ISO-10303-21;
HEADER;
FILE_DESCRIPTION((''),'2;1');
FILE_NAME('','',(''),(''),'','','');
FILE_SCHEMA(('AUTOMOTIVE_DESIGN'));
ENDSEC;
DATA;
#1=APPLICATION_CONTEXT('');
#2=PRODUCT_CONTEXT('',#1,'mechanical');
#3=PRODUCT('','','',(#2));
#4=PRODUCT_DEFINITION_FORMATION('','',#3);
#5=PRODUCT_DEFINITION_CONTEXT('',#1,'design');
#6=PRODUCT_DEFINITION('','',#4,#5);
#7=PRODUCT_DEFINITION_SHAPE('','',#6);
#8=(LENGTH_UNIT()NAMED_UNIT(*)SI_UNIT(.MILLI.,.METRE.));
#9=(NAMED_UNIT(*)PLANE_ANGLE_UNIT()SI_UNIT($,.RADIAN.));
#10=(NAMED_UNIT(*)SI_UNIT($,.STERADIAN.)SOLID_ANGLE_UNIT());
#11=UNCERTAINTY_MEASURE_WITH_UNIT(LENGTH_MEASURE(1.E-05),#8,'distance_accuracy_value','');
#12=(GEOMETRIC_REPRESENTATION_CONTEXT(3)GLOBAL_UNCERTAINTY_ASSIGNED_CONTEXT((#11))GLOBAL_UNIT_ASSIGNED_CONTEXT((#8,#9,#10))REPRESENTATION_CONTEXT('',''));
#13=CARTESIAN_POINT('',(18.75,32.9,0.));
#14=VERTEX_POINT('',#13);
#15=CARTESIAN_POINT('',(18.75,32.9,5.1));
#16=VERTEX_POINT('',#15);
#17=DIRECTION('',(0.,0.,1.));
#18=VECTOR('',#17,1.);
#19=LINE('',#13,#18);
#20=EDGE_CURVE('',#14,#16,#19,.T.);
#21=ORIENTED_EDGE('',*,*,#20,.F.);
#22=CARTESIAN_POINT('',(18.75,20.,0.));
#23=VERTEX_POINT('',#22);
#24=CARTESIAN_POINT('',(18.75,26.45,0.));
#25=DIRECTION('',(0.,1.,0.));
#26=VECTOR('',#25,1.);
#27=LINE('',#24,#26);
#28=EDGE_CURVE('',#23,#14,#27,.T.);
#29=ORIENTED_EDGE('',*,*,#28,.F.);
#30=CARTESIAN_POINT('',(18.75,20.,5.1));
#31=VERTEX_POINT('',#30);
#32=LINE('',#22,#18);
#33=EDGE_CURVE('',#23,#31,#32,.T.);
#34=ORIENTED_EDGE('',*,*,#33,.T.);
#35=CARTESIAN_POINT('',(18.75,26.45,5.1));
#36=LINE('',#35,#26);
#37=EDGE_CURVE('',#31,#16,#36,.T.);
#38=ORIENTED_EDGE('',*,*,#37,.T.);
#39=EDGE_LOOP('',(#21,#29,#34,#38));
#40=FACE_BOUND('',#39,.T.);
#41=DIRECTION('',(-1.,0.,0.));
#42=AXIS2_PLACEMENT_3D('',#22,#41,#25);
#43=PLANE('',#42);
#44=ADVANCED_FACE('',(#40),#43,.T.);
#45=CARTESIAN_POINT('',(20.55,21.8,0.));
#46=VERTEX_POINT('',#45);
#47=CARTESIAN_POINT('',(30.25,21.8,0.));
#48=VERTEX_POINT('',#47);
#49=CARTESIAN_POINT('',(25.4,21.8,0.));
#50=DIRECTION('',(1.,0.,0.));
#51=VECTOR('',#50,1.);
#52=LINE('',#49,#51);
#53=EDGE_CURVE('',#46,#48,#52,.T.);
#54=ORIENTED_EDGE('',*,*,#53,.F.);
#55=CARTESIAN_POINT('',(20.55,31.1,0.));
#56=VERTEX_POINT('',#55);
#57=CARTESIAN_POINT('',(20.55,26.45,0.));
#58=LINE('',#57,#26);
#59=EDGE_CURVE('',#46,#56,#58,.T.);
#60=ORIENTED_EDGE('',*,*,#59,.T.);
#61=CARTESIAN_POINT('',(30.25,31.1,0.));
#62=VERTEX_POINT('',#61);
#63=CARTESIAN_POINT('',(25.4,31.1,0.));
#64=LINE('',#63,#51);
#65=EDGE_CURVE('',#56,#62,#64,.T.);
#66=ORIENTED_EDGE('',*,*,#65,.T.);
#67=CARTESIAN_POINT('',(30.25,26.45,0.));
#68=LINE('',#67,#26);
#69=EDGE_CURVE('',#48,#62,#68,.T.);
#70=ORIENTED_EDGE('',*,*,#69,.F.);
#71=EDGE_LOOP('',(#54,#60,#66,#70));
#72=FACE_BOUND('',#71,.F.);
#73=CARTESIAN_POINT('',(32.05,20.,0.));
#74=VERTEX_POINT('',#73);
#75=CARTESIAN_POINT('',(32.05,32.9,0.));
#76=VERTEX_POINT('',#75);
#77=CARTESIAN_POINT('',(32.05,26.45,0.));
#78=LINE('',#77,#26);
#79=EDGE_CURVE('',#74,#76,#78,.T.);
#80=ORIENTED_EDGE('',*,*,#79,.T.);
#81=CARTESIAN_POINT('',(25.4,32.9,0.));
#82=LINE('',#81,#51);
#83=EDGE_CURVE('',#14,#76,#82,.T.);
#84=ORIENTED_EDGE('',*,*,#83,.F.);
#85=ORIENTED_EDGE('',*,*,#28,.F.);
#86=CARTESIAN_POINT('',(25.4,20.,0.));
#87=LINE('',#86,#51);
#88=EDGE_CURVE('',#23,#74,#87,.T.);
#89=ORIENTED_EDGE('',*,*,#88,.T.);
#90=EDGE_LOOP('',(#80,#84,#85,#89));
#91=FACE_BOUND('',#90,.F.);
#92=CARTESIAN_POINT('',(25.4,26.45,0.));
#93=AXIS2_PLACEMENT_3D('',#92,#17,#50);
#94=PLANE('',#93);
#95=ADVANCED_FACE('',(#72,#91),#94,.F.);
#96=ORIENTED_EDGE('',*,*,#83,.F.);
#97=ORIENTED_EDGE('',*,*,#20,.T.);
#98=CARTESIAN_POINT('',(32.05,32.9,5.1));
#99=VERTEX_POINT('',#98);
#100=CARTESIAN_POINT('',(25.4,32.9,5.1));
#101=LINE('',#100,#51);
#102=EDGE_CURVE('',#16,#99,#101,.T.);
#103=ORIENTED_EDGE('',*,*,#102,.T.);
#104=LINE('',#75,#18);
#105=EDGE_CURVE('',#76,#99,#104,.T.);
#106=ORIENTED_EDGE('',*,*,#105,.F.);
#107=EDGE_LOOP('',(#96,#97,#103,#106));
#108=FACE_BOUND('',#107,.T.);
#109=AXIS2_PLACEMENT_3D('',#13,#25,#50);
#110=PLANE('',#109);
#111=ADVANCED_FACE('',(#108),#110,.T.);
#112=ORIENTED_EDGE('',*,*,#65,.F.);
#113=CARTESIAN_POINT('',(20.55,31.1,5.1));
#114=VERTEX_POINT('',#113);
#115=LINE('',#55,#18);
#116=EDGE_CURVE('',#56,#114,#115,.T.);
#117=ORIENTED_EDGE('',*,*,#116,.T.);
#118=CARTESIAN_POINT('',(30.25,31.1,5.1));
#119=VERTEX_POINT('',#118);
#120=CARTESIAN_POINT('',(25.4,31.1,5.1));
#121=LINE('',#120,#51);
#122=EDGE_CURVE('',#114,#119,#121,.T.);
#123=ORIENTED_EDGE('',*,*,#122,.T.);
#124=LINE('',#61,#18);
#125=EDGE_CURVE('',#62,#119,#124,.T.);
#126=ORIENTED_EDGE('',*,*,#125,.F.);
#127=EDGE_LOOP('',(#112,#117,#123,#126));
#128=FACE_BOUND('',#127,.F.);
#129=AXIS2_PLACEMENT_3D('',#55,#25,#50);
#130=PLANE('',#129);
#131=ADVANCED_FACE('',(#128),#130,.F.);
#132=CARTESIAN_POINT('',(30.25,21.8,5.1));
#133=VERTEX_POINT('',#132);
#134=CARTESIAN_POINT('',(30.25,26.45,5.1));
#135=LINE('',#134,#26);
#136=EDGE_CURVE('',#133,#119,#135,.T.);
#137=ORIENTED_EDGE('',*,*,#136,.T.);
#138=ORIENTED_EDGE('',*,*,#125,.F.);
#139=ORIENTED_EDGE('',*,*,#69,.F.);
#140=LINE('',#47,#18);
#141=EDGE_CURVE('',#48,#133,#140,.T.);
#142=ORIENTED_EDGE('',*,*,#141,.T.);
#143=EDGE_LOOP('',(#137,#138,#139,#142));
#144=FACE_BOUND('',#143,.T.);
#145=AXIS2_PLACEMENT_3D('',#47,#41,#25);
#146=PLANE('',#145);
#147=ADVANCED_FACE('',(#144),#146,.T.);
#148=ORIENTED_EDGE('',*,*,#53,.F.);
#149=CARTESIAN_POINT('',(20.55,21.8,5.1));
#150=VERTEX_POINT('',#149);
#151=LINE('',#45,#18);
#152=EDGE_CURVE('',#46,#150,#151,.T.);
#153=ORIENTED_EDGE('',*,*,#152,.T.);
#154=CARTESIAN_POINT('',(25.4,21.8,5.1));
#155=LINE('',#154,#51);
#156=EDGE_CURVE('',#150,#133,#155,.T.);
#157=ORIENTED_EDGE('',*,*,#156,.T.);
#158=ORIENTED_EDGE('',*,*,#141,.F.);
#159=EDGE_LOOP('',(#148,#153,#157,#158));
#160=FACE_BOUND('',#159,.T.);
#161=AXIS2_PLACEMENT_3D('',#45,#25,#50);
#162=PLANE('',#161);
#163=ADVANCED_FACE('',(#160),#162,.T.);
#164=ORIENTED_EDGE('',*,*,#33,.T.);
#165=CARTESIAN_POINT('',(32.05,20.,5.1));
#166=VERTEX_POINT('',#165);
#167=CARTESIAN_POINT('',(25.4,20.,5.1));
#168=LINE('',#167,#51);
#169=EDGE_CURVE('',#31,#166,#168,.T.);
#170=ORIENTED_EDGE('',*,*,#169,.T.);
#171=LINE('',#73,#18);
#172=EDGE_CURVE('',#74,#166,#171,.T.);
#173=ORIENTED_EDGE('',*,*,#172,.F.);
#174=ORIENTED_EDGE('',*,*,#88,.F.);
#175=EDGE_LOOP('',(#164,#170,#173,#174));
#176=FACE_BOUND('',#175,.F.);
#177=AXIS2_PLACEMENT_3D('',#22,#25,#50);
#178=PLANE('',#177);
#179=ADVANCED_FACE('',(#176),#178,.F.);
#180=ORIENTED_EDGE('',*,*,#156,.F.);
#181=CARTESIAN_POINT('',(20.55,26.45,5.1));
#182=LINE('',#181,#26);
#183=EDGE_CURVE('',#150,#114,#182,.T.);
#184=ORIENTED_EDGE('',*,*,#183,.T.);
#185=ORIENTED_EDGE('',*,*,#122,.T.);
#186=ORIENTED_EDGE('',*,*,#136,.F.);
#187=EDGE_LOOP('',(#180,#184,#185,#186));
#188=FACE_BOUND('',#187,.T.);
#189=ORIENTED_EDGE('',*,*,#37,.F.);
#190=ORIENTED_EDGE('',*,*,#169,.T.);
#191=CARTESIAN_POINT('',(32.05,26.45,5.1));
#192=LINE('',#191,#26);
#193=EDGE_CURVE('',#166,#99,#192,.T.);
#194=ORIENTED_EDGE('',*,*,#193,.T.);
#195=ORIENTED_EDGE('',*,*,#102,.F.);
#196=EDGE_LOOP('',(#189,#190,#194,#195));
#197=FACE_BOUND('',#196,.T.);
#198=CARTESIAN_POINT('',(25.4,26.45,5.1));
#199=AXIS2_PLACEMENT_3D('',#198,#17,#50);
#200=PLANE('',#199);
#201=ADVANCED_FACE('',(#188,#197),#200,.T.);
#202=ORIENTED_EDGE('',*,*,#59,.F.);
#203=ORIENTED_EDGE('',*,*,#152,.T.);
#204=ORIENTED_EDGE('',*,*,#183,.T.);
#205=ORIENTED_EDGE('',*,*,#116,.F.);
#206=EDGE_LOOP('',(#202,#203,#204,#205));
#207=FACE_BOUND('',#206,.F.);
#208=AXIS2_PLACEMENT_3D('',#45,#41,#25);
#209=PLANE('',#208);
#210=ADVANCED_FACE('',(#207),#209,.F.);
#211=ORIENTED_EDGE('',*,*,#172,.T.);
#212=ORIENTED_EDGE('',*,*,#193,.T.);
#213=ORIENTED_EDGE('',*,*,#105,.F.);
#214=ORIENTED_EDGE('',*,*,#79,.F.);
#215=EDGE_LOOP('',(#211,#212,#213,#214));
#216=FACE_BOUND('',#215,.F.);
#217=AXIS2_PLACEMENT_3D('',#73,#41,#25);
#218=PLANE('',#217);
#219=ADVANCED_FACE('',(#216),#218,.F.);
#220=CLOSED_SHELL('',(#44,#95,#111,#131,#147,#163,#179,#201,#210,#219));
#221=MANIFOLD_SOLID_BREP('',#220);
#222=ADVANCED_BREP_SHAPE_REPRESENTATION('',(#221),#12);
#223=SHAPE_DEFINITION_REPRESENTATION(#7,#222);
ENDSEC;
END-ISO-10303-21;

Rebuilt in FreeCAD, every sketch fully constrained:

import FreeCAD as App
import Part
import Sketcher

V = App.Vector
Q = App.Units.Quantity


def add_polygon(sketch, points):
    """Adds a closed chain of lines whose ends are joined by coincident constraints."""
    first, n = sketch.GeometryCount, len(points)
    for a, b in zip(points, points[1:] + points[:1]):
        sketch.addGeometry(Part.LineSegment(App.Vector(*a, 0), App.Vector(*b, 0)), False)
    for i in range(n):
        sketch.addConstraint(Sketcher.Constraint("Coincident", first + i, 2, first + (i + 1) % n, 1))

doc = App.newDocument("Part")
body = doc.addObject("PartDesign::Body", "Body")

sketch1 = body.newObject("Sketcher::SketchObject", "Sketch")
sketch1.AttachmentSupport = (doc.getObject("XY_Plane"), [""])
sketch1.MapMode = "FlatFace"
add_polygon(sketch1, [(1.8, 11.1), (1.8, 1.8), (11.5, 1.8), (11.5, 11.1)])
sketch1.addConstraint(Sketcher.Constraint("Vertical", 0))
sketch1.addConstraint(Sketcher.Constraint("Horizontal", 1))
sketch1.addConstraint(Sketcher.Constraint("Vertical", 2))
sketch1.addConstraint(Sketcher.Constraint("Horizontal", 3))
sketch1.addConstraint(Sketcher.Constraint("DistanceX", 1, 1, 1, 2, Q("9.7 mm")))
sketch1.addConstraint(Sketcher.Constraint("DistanceY", 0, 2, 0, 1, Q("9.3 mm")))
sketch1.addConstraint(Sketcher.Constraint("DistanceX", -1, 1, 0, 2, Q("1.8 mm")))
sketch1.addConstraint(Sketcher.Constraint("DistanceY", -1, 1, 0, 2, Q("1.8 mm")))
pad1 = body.newObject("PartDesign::Pad", "Pad")
pad1.Profile = sketch1
pad1.Length = 5.1
body2 = doc.addObject("PartDesign::Body", "Body001")

sketch2 = body2.newObject("Sketcher::SketchObject", "Sketch001")
sketch2.AttachmentSupport = (doc.getObject("XY_Plane001"), [""])
sketch2.MapMode = "FlatFace"
add_polygon(sketch2, [(0, 12.9), (0, 0), (13.3, 0), (13.3, 12.9)])
sketch2.addConstraint(Sketcher.Constraint("Vertical", 0))
sketch2.addConstraint(Sketcher.Constraint("Horizontal", 1))
sketch2.addConstraint(Sketcher.Constraint("Vertical", 2))
sketch2.addConstraint(Sketcher.Constraint("Horizontal", 3))
sketch2.addConstraint(Sketcher.Constraint("Coincident", 0, 2, -1, 1))
sketch2.addConstraint(Sketcher.Constraint("DistanceX", 1, 1, 1, 2, Q("13.3 mm")))
sketch2.addConstraint(Sketcher.Constraint("DistanceY", 0, 2, 0, 1, Q("12.9 mm")))
pad2 = body2.newObject("PartDesign::Pad", "Pad001")
pad2.Profile = sketch2
pad2.Length = 5.1
doc.recompute()

boolean = body2.newObject("PartDesign::Boolean", "Boolean")
boolean.Type = "Cut"
boolean.addObjects([body])
body3 = doc.addObject("PartDesign::Body", "Body002")
doc.recompute()

body2.Placement = App.Placement(V(18.75, 20, 0), App.Rotation(V(0, 0, 1), 0))
boolean2 = body3.newObject("PartDesign::Boolean", "Boolean001")
boolean2.Type = "Fuse"
boolean2.addObjects([body2])

doc.recompute()
